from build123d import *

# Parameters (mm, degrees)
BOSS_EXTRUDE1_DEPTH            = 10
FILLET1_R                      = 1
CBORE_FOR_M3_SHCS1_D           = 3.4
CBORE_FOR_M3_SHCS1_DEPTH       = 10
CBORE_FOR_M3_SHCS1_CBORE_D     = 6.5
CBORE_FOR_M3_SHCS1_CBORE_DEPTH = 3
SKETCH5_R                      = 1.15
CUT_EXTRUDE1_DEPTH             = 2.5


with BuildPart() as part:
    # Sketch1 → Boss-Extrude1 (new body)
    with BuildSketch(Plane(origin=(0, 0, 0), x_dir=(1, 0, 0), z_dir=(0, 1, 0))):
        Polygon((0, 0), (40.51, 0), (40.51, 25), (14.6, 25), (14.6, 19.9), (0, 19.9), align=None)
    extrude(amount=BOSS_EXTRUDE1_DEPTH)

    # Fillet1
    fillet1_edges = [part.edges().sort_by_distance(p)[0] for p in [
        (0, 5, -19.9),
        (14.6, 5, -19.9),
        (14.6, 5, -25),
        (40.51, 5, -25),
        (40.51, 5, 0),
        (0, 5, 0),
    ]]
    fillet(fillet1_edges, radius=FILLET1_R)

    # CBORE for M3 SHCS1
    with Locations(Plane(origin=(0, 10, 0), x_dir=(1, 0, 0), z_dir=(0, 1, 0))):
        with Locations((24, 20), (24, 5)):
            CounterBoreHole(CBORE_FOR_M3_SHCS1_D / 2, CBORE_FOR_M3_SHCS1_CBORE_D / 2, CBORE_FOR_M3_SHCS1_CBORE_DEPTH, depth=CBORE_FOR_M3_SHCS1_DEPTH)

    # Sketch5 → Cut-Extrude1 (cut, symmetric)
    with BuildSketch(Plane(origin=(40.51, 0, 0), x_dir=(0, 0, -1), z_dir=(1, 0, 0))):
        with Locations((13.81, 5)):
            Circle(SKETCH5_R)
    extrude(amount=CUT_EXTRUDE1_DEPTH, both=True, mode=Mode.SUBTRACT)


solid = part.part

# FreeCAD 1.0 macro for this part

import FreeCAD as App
import Part
import Sketcher
Q = App.Units.Quantity


def edges_at(feature, points):
    """Names of the edges that pass closest to the given points."""
    edges = feature.Shape.Edges
    near = lambda p: min(range(len(edges)), key=lambda i: edges[i].distToShape(Part.Vertex(*p))[0])
    return sorted({f"Edge{near(p) + 1}" for p in points})

doc = App.newDocument("Part")
body = doc.addObject("PartDesign::Body", "Body")

sketch1 = doc.addObject("Sketcher::SketchObject", "Sketch")
body.addObject(sketch1)
sketch1.AttachmentSupport = (doc.XZ_Plane, [""])
sketch1.MapMode = "FlatFace"
sketch1.addGeometry([
    Part.LineSegment(App.Vector(0, 0, 0), App.Vector(41, 0, 0)),
    Part.LineSegment(App.Vector(41, 0, 0), App.Vector(41, -25, 0)),
    Part.LineSegment(App.Vector(41, -25, 0), App.Vector(15, -25, 0)),
    Part.LineSegment(App.Vector(15, -25, 0), App.Vector(15, -20, 0)),
    Part.LineSegment(App.Vector(15, -20, 0), App.Vector(0, -20, 0)),
    Part.LineSegment(App.Vector(0, -20, 0), App.Vector(0, 0, 0)),
], False)
sketch1.addConstraint([
    Sketcher.Constraint("Coincident", 0, 2, 1, 1),
    Sketcher.Constraint("Coincident", 1, 2, 2, 1),
    Sketcher.Constraint("Coincident", 2, 2, 3, 1),
    Sketcher.Constraint("Coincident", 3, 2, 4, 1),
    Sketcher.Constraint("Coincident", 4, 2, 5, 1),
    Sketcher.Constraint("Coincident", 5, 2, 0, 1),
    Sketcher.Constraint("Horizontal", 0),
    Sketcher.Constraint("Vertical", 1),
    Sketcher.Constraint("Horizontal", 2),
    Sketcher.Constraint("Vertical", 3),
    Sketcher.Constraint("Horizontal", 4),
    Sketcher.Constraint("Vertical", 5),
    Sketcher.Constraint("Coincident", 5, 2, -1, 1),
    Sketcher.Constraint("DistanceY", 1, 2, 1, 1, Q("25 mm")),
    Sketcher.Constraint("DistanceX", 4, 2, 4, 1, Q("14.6 mm")),
    Sketcher.Constraint("DistanceY", 3, 1, 3, 2, Q("5.1 mm")),
    Sketcher.Constraint("DistanceX", 0, 1, 0, 2, Q("40.51 mm")),
])
pad1 = doc.addObject("PartDesign::Pad", "Pad")
body.addObject(pad1)
pad1.Profile = sketch1
pad1.Length = 10
pad1.Reversed = True
doc.recompute()

fillet = doc.addObject("PartDesign::Fillet", "Fillet")
body.addObject(fillet)
fillet.Base = (pad1, edges_at(pad1, [
    (0, 5, -19.9),
    (14.6, 5, -19.9),
    (14.6, 5, -25),
    (40.51, 5, -25),
    (40.51, 5, 0),
    (0, 5, 0),
]))
fillet.Radius = 1

sketch2 = doc.addObject("Sketcher::SketchObject", "Sketch001")
body.addObject(sketch2)
sketch2.AttachmentSupport = (doc.XZ_Plane, [""])
sketch2.MapMode = "FlatFace"
sketch2.AttachmentOffset = App.Placement(App.Vector(0, 0, -10), App.Rotation())
sketch2.addGeometry([
    Part.Circle(App.Vector(24, -20, 0), App.Vector(0, 0, 1), 1.7),
    Part.Circle(App.Vector(24, -5, 0), App.Vector(0, 0, 1), 1.7),
], False)
sketch2.addConstraint([
    Sketcher.Constraint("Equal", 0, 1),
    Sketcher.Constraint("Vertical", 0, 3, 1, 3),
    Sketcher.Constraint("Diameter", 0, Q("3.4 mm")),
    Sketcher.Constraint("DistanceX", -1, 1, 0, 3, Q("24 mm")),
    Sketcher.Constraint("DistanceY", 0, 3, -1, 1, Q("20 mm")),
    Sketcher.Constraint("DistanceY", 1, 3, -1, 1, Q("5 mm")),
])
doc.recompute()
hole = doc.addObject("PartDesign::Hole", "Hole")
body.addObject(hole)
hole.Profile = sketch2
hole.ThreadType = "None"
hole.Diameter = 3.4
hole.DepthType = "Dimension"
hole.Depth = 10
hole.DrillPoint = "Flat"
hole.HoleCutType = "Counterbore"
hole.HoleCutDiameter = 6.5
hole.HoleCutDepth = 3
hole.Reversed = True

sketch3 = doc.addObject("Sketcher::SketchObject", "Sketch002")
body.addObject(sketch3)
sketch3.AttachmentSupport = (doc.YZ_Plane, [""])
sketch3.MapMode = "FlatFace"
sketch3.AttachmentOffset = App.Placement(App.Vector(0, 0, 40.51), App.Rotation())
sketch3.addGeometry(Part.Circle(App.Vector(5, -13.8, 0), App.Vector(0, 0, 1), 1.1), False)
sketch3.addConstraint([
    Sketcher.Constraint("Diameter", 0, Q("2.3 mm")),
    Sketcher.Constraint("DistanceX", -1, 1, 0, 3, Q("5 mm")),
    Sketcher.Constraint("DistanceY", 0, 3, -1, 1, Q("13.81 mm")),
])
pocket1 = doc.addObject("PartDesign::Pocket", "Pocket")
body.addObject(pocket1)
pocket1.Profile = sketch3
pocket1.Length = 5
pocket1.Midplane = True

doc.recompute()
